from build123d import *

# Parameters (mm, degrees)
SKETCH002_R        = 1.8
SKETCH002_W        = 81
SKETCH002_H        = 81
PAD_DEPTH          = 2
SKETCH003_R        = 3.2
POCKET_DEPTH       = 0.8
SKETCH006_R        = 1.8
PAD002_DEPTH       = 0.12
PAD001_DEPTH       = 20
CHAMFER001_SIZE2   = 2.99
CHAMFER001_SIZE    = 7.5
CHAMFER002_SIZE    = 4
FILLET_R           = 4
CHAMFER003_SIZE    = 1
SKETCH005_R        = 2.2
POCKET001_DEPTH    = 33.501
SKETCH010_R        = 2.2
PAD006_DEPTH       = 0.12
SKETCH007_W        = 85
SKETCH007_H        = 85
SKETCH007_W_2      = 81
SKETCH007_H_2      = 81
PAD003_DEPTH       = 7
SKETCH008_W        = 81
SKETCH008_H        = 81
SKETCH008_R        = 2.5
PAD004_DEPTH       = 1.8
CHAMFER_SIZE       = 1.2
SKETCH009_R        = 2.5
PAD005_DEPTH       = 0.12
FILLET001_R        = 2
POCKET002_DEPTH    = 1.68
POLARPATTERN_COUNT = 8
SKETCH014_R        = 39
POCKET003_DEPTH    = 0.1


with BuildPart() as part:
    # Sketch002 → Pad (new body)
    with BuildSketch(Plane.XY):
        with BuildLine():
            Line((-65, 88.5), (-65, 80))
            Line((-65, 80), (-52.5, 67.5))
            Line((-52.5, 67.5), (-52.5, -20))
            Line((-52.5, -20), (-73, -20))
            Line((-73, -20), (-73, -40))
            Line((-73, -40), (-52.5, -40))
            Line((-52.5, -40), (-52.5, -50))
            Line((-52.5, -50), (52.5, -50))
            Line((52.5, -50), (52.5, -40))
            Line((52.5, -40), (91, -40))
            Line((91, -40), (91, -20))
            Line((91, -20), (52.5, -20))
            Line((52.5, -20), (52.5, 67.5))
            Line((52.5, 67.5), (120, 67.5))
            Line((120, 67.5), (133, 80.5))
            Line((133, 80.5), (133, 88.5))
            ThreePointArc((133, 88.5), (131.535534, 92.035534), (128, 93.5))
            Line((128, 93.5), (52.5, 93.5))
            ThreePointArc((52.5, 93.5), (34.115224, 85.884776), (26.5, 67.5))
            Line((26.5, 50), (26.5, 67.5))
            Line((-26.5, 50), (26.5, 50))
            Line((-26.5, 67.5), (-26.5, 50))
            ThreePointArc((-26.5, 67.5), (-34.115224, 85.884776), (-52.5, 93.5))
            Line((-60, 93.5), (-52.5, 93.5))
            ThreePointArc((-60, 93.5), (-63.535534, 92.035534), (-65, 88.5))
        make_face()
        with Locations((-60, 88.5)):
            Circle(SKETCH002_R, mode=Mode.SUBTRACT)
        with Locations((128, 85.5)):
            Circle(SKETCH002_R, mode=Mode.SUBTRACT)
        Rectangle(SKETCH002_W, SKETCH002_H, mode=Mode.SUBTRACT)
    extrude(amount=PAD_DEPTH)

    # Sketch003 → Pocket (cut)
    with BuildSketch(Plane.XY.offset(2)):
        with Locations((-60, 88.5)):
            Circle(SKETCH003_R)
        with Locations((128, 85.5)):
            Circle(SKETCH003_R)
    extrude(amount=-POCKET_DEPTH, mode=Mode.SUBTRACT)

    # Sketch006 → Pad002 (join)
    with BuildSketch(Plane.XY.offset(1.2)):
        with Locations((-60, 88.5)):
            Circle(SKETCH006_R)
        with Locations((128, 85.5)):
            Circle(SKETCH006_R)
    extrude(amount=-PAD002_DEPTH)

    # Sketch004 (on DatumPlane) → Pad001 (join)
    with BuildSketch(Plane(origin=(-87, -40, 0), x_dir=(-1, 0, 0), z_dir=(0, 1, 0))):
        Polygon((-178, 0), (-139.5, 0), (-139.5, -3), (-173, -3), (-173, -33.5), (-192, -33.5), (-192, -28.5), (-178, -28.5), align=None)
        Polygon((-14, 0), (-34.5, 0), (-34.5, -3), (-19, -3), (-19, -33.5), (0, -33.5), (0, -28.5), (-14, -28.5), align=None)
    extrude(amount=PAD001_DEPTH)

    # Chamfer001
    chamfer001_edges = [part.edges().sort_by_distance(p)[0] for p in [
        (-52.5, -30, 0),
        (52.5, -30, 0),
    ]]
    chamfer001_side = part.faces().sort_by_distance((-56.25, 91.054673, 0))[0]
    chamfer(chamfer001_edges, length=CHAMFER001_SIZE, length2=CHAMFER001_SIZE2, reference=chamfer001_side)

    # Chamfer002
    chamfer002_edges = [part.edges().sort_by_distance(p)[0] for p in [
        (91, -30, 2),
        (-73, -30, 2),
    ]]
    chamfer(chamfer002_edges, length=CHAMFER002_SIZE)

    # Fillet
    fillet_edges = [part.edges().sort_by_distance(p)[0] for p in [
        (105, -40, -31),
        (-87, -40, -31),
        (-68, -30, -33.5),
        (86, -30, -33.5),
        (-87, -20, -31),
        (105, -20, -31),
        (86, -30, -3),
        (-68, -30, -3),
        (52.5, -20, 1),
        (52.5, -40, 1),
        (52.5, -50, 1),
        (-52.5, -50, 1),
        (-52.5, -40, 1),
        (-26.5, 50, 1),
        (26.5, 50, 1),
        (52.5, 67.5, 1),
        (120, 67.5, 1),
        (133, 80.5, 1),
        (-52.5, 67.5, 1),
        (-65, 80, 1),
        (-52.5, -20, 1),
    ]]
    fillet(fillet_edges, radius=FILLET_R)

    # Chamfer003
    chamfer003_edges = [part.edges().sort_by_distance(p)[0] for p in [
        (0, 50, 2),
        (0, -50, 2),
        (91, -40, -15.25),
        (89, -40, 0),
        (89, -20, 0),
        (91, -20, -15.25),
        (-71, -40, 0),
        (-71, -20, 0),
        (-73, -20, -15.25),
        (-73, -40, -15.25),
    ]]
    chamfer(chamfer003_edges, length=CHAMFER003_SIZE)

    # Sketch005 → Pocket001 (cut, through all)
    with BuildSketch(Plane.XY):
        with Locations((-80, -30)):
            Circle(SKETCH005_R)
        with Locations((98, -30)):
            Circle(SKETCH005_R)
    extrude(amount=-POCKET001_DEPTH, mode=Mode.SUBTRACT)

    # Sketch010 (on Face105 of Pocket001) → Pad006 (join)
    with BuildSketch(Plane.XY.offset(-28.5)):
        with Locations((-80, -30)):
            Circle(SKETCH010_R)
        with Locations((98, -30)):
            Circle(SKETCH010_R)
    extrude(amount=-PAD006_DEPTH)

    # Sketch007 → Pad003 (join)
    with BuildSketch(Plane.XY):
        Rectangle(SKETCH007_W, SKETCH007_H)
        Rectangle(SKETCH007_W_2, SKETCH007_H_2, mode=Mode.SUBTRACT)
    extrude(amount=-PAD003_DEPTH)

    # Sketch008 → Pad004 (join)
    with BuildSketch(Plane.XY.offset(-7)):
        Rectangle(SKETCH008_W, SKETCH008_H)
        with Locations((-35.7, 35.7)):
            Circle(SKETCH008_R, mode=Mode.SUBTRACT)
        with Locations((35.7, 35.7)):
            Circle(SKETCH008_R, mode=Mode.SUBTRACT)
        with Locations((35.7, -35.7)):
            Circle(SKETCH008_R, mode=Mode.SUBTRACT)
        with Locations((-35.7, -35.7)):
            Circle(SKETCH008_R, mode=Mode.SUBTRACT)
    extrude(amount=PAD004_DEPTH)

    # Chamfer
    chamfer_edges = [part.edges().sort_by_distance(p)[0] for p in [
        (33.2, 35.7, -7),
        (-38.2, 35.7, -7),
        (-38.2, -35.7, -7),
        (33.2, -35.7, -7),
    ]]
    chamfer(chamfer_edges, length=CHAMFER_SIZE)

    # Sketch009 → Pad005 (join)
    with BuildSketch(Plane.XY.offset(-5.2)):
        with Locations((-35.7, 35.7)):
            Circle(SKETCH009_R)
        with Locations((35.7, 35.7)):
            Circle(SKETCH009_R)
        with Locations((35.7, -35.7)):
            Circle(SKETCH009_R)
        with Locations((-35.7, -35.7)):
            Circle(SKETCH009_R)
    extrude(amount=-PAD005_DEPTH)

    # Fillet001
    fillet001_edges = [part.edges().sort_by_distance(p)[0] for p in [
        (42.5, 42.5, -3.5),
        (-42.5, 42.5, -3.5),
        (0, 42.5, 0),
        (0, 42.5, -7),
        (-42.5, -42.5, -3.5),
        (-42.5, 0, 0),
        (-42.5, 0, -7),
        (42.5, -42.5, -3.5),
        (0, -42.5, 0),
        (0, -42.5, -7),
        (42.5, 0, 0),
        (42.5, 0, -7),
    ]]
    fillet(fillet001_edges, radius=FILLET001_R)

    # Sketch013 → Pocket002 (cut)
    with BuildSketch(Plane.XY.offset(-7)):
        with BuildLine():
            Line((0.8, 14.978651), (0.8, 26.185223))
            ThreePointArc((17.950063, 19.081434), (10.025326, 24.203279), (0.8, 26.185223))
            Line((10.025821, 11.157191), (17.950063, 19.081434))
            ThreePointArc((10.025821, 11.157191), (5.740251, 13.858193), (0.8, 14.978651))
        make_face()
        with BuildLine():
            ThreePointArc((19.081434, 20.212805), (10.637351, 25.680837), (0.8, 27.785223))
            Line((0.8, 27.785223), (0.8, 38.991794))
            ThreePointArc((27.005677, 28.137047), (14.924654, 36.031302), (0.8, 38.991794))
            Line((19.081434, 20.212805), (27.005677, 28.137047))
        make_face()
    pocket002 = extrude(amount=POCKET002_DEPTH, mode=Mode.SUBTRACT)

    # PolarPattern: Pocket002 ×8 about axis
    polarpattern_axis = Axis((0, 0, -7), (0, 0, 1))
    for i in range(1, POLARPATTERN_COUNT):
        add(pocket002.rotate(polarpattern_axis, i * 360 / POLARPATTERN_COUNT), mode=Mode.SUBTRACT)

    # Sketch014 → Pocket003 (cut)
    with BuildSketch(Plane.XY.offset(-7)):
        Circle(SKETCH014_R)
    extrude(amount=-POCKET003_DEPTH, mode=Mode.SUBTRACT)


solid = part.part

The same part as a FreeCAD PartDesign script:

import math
import FreeCAD as App
import Part
import Sketcher
from FreeCAD import Vector
Q = App.Units.Quantity


def edges_at(feature, points):
    """Names of the edges that pass closest to the given points."""
    edges = feature.Shape.Edges
    near = lambda p: min(range(len(edges)), key=lambda i: edges[i].distToShape(Part.Vertex(*p))[0])
    return sorted({f"Edge{near(p) + 1}" for p in points})

doc = App.newDocument("Part")
body = doc.addObject("PartDesign::Body", "Body")

sketch1 = body.newObject("Sketcher::SketchObject", "Sketch")
sketch1.AttachmentSupport = (doc.getObject("XY_Plane"), [""])
sketch1.MapMode = "FlatFace"
sketch1.addGeometry([
    Part.LineSegment(Vector(-65, 88.5, 0), Vector(-65, 80, 0)),
    Part.LineSegment(Vector(-65, 80, 0), Vector(-52.5, 67.5, 0)),
    Part.LineSegment(Vector(-52.5, 67.5, 0), Vector(-52.5, -20, 0)),
    Part.LineSegment(Vector(-52.5, -20, 0), Vector(-73, -20, 0)),
    Part.LineSegment(Vector(-73, -20, 0), Vector(-73, -40, 0)),
    Part.LineSegment(Vector(-73, -40, 0), Vector(-52.5, -40, 0)),
    Part.LineSegment(Vector(-52.5, -40, 0), Vector(-52.5, -50, 0)),
    Part.LineSegment(Vector(-52.5, -50, 0), Vector(52.5, -50, 0)),
    Part.LineSegment(Vector(52.5, -50, 0), Vector(52.5, -40, 0)),
    Part.LineSegment(Vector(52.5, -40, 0), Vector(91, -40, 0)),
    Part.LineSegment(Vector(91, -40, 0), Vector(91, -20, 0)),
    Part.LineSegment(Vector(91, -20, 0), Vector(52.5, -20, 0)),
    Part.LineSegment(Vector(52.5, -20, 0), Vector(52.5, 67.5, 0)),
    Part.LineSegment(Vector(52.5, 67.5, 0), Vector(120, 67.5, 0)),
    Part.LineSegment(Vector(120, 67.5, 0), Vector(133, 80.5, 0)),
    Part.LineSegment(Vector(133, 80.5, 0), Vector(133, 88.5, 0)),
    Part.ArcOfCircle(Part.Circle(Vector(128, 88.5, 0), Vector(0, 0, 1), 5), math.radians(-0.000004), math.radians(90.000004)),
    Part.LineSegment(Vector(128, 93.5, 0), Vector(52.5, 93.5, 0)),
    Part.ArcOfCircle(Part.Circle(Vector(52.500001, 67.499999, 0), Vector(0, 0, 1), 26.000001), math.radians(90.000002), math.radians(179.999998)),
    Part.LineSegment(Vector(26.5, 67.5, 0), Vector(26.5, 50, 0)),
    Part.LineSegment(Vector(26.5, 50, 0), Vector(-26.5, 50, 0)),
    Part.LineSegment(Vector(-26.5, 50, 0), Vector(-26.5, 67.5, 0)),
    Part.ArcOfCircle(Part.Circle(Vector(-52.500001, 67.499999, 0), Vector(0, 0, 1), 26.000001), math.radians(0.000002), math.radians(89.999998)),
    Part.LineSegment(Vector(-52.5, 93.5, 0), Vector(-60, 93.5, 0)),
    Part.ArcOfCircle(Part.Circle(Vector(-60, 88.5, 0), Vector(0, 0, 1), 5), math.radians(89.999996), math.radians(180.000004)),
    Part.LineSegment(Vector(40.5, -40.5, 0), Vector(-40.5, -40.5, 0)),
    Part.LineSegment(Vector(-40.5, -40.5, 0), Vector(-40.5, 40.5, 0)),
    Part.LineSegment(Vector(-40.5, 40.5, 0), Vector(40.5, 40.5, 0)),
    Part.LineSegment(Vector(40.5, 40.5, 0), Vector(40.5, -40.5, 0)),
    Part.Circle(Vector(-60, 88.5, 0), Vector(0, 0, 1), 1.8),
    Part.Circle(Vector(128, 85.5, 0), Vector(0, 0, 1), 1.8),
], False)
sketch1.addConstraint([
    Sketcher.Constraint("Coincident", 0, 2, 1, 1),
    Sketcher.Constraint("Coincident", 1, 2, 2, 1),
    Sketcher.Constraint("Coincident", 2, 2, 3, 1),
    Sketcher.Constraint("Coincident", 3, 2, 4, 1),
    Sketcher.Constraint("Coincident", 4, 2, 5, 1),
    Sketcher.Constraint("Coincident", 5, 2, 6, 1),
    Sketcher.Constraint("Coincident", 6, 2, 7, 1),
    Sketcher.Constraint("Coincident", 7, 2, 8, 1),
    Sketcher.Constraint("Coincident", 8, 2, 9, 1),
    Sketcher.Constraint("Coincident", 9, 2, 10, 1),
    Sketcher.Constraint("Coincident", 10, 2, 11, 1),
    Sketcher.Constraint("Coincident", 11, 2, 12, 1),
    Sketcher.Constraint("Coincident", 12, 2, 13, 1),
    Sketcher.Constraint("Coincident", 13, 2, 14, 1),
    Sketcher.Constraint("Coincident", 14, 2, 15, 1),
    Sketcher.Constraint("Tangent", 15, 2, 16, 1),
    Sketcher.Constraint("Tangent", 16, 2, 17, 1),
    Sketcher.Constraint("Tangent", 17, 2, 18, 1),
    Sketcher.Constraint("Tangent", 18, 2, 19, 1),
    Sketcher.Constraint("Coincident", 19, 2, 20, 1),
    Sketcher.Constraint("Coincident", 20, 2, 21, 1),
    Sketcher.Constraint("Tangent", 21, 2, 22, 1),
    Sketcher.Constraint("Tangent", 22, 2, 23, 1),
    Sketcher.Constraint("Tangent", 23, 2, 24, 1),
    Sketcher.Constraint("Tangent", 24, 2, 0, 1),
    Sketcher.Constraint("Coincident", 25, 2, 26, 1),
    Sketcher.Constraint("Coincident", 26, 2, 27, 1),
    Sketcher.Constraint("Coincident", 27, 2, 28, 1),
    Sketcher.Constraint("Coincident", 28, 2, 25, 1),
    Sketcher.Constraint("Vertical", 0),
    Sketcher.Constraint("Vertical", 2),
    Sketcher.Constraint("Horizontal", 3),
    Sketcher.Constraint("Vertical", 4),
    Sketcher.Constraint("Horizontal", 5),
    Sketcher.Constraint("Vertical", 6),
    Sketcher.Constraint("Horizontal", 7),
    Sketcher.Constraint("Vertical", 8),
    Sketcher.Constraint("Horizontal", 9),
    Sketcher.Constraint("Vertical", 10),
    Sketcher.Constraint("Horizontal", 11),
    Sketcher.Constraint("Vertical", 12),
    Sketcher.Constraint("Horizontal", 13),
    Sketcher.Constraint("Vertical", 15),
    Sketcher.Constraint("Horizontal", 17),
    Sketcher.Constraint("Vertical", 19),
    Sketcher.Constraint("Horizontal", 20),
    Sketcher.Constraint("Vertical", 21),
    Sketcher.Constraint("Horizontal", 23),
    Sketcher.Constraint("Horizontal", 25),
    Sketcher.Constraint("Vertical", 26),
    Sketcher.Constraint("Horizontal", 27),
    Sketcher.Constraint("Vertical", 28),
    Sketcher.Constraint("Coincident", 29, 3, 24, 3),
    Sketcher.Constraint("Coincident", 1, 2, 22, 3),
    Sketcher.Constraint("Coincident", 12, 2, 18, 3),
    Sketcher.Constraint("Equal", 18, 22),
    Sketcher.Constraint("Equal", 16, 24),
    Sketcher.Constraint("Equal", 29, 30),
    Sketcher.Constraint("Symmetric", 25, 2, 27, 2, -1, 1),
    Sketcher.Constraint("Symmetric", 18, 3, 22, 3, -2),
    Sketcher.Constraint("Symmetric", 5, 2, 8, 2, -2),
    Sketcher.Constraint("Perpendicular", 1, 14),
    Sketcher.Constraint("Horizontal", 3, 2, 10, 2),
    Sketcher.Constraint("Vertical", 16, 3, 30, 3),
    Sketcher.Constraint("Vertical", 2, 2, 5, 2),
    Sketcher.Constraint("Equal", 27, 26),
    Sketcher.Constraint("Radius", 16, 5.0),
    Sketcher.Constraint("Radius", 18, 26.000001),
    Sketcher.Constraint("Diameter", 29, 3.6),
    Sketcher.Constraint("DistanceX", 7, 1, 7, 2, 105.0),
    Sketcher.Constraint("DistanceX", 25, 2, 25, 1, 81.0),
    Sketcher.Constraint("DistanceY", 4, 2, 4, 1, 20.0),
    Sketcher.Constraint("DistanceY", 6, 2, 6, 1, 10.0),
    Sketcher.Constraint("DistanceY", 15, 1, 15, 2, 8.0),
    Sketcher.Constraint("Angle", 1, Q("-45 deg")),
    Sketcher.Constraint("DistanceX", 3, 2, 3, 1, 20.5),
    Sketcher.Constraint("DistanceX", 9, 1, 9, 2, 38.5),
    Sketcher.Constraint("DistanceX", 13, 1, 13, 2, 67.5),
    Sketcher.Constraint("DistanceX", 23, 2, 23, 1, 7.5),
    Sketcher.Constraint("DistanceY", 2, 2, 2, 1, 87.5),
    Sketcher.Constraint("DistanceY", 19, 2, 19, 1, 17.5),
    Sketcher.Constraint("DistanceY", -1, 1, 0, 2, 80.0),
    Sketcher.Constraint("DistanceY", 30, 3, 16, 3, 3.0),
])
pad1 = body.newObject("PartDesign::Pad", "Pad")
pad1.Profile = sketch1
pad1.Length = 2

sketch2 = body.newObject("Sketcher::SketchObject", "Sketch001")
sketch2.AttachmentSupport = (doc.getObject("XY_Plane"), [""])
sketch2.MapMode = "FlatFace"
sketch2.AttachmentOffset = App.Placement(Vector(0, 0, 2), App.Rotation())
sketch2.addGeometry([
    Part.Circle(Vector(-60, 88.5, 0), Vector(0, 0, 1), 3.2),
    Part.Circle(Vector(128, 85.5, 0), Vector(0, 0, 1), 3.2),
], False)
sketch2.addConstraint([
    Sketcher.Constraint("Equal", 0, 1),
    Sketcher.Constraint("Diameter", 0, 6.4),
    Sketcher.Constraint("DistanceX", 0, 3, -1, 1, 60.0),
    Sketcher.Constraint("DistanceX", -1, 1, 1, 3, 128.0),
    Sketcher.Constraint("DistanceY", 1, 3, 0, 3, 3.0),
    Sketcher.Constraint("DistanceY", -1, 1, 0, 3, 88.5),
])
pocket1 = body.newObject("PartDesign::Pocket", "Pocket")
pocket1.Profile = sketch2
pocket1.Length = 0.8

sketch3 = body.newObject("Sketcher::SketchObject", "Sketch002")
sketch3.AttachmentSupport = (doc.getObject("XY_Plane"), [""])
sketch3.MapMode = "FlatFace"
sketch3.AttachmentOffset = App.Placement(Vector(0, 0, 1.2), App.Rotation())
sketch3.addGeometry([
    Part.Circle(Vector(-60, 88.5, 0), Vector(0, 0, 1), 1.8),
    Part.Circle(Vector(128, 85.5, 0), Vector(0, 0, 1), 1.8),
], False)
sketch3.addConstraint([
    Sketcher.Constraint("Equal", 0, 1),
    Sketcher.Constraint("Diameter", 0, 3.6),
    Sketcher.Constraint("DistanceX", 0, 3, -1, 1, 60.0),
    Sketcher.Constraint("DistanceX", -1, 1, 1, 3, 128.0),
    Sketcher.Constraint("DistanceY", 1, 3, 0, 3, 3.0),
    Sketcher.Constraint("DistanceY", -1, 1, 0, 3, 88.5),
])
pad2 = body.newObject("PartDesign::Pad", "Pad001")
pad2.Profile = sketch3
pad2.Length = 0.12
pad2.Reversed = True

sketch4 = body.newObject("Sketcher::SketchObject", "Sketch003")
sketch4.AttachmentSupport = (doc.getObject("XZ_Plane"), [""])
sketch4.MapMode = "FlatFace"
sketch4.AttachmentOffset = App.Placement(Vector(0, 0, 40), App.Rotation())
sketch4.addGeometry([
    Part.LineSegment(Vector(52.5, 0, 0), Vector(91, 0, 0)),
    Part.LineSegment(Vector(91, 0, 0), Vector(91, -28.5, 0)),
    Part.LineSegment(Vector(91, -28.5, 0), Vector(105, -28.5, 0)),
    Part.LineSegment(Vector(105, -28.5, 0), Vector(105, -33.5, 0)),
    Part.LineSegment(Vector(105, -33.5, 0), Vector(86, -33.5, 0)),
    Part.LineSegment(Vector(86, -33.5, 0), Vector(86, -3, 0)),
    Part.LineSegment(Vector(86, -3, 0), Vector(52.5, -3, 0)),
    Part.LineSegment(Vector(52.5, -3, 0), Vector(52.5, 0, 0)),
    Part.LineSegment(Vector(-73, 0, 0), Vector(-52.5, 0, 0)),
    Part.LineSegment(Vector(-52.5, 0, 0), Vector(-52.5, -3, 0)),
    Part.LineSegment(Vector(-52.5, -3, 0), Vector(-68, -3, 0)),
    Part.LineSegment(Vector(-68, -3, 0), Vector(-68, -33.5, 0)),
    Part.LineSegment(Vector(-68, -33.5, 0), Vector(-87, -33.5, 0)),
    Part.LineSegment(Vector(-87, -33.5, 0), Vector(-87, -28.5, 0)),
    Part.LineSegment(Vector(-87, -28.5, 0), Vector(-73, -28.5, 0)),
    Part.LineSegment(Vector(-73, -28.5, 0), Vector(-73, 0, 0)),
], False)
sketch4.addConstraint([
    Sketcher.Constraint("Coincident", 0, 2, 1, 1),
    Sketcher.Constraint("Coincident", 1, 2, 2, 1),
    Sketcher.Constraint("Coincident", 2, 2, 3, 1),
    Sketcher.Constraint("Coincident", 3, 2, 4, 1),
    Sketcher.Constraint("Coincident", 4, 2, 5, 1),
    Sketcher.Constraint("Coincident", 5, 2, 6, 1),
    Sketcher.Constraint("Coincident", 6, 2, 7, 1),
    Sketcher.Constraint("Coincident", 7, 2, 0, 1),
    Sketcher.Constraint("Coincident", 8, 2, 9, 1),
    Sketcher.Constraint("Coincident", 9, 2, 10, 1),
    Sketcher.Constraint("Coincident", 10, 2, 11, 1),
    Sketcher.Constraint("Coincident", 11, 2, 12, 1),
    Sketcher.Constraint("Coincident", 12, 2, 13, 1),
    Sketcher.Constraint("Coincident", 13, 2, 14, 1),
    Sketcher.Constraint("Coincident", 14, 2, 15, 1),
    Sketcher.Constraint("Coincident", 15, 2, 8, 1),
    Sketcher.Constraint("Horizontal", 0),
    Sketcher.Constraint("Vertical", 1),
    Sketcher.Constraint("Horizontal", 2),
    Sketcher.Constraint("Vertical", 3),
    Sketcher.Constraint("Horizontal", 4),
    Sketcher.Constraint("Vertical", 5),
    Sketcher.Constraint("Horizontal", 6),
    Sketcher.Constraint("Vertical", 7),
    Sketcher.Constraint("Horizontal", 8),
    Sketcher.Constraint("Vertical", 9),
    Sketcher.Constraint("Horizontal", 10),
    Sketcher.Constraint("Vertical", 11),
    Sketcher.Constraint("Horizontal", 12),
    Sketcher.Constraint("Vertical", 13),
    Sketcher.Constraint("Horizontal", 14),
    Sketcher.Constraint("Vertical", 15),
    Sketcher.Constraint("Symmetric", 7, 2, 8, 2, -1, 1),
    Sketcher.Constraint("PointOnObject", 0, 2, -1),
    Sketcher.Constraint("Horizontal", 6, 2, 9, 2),
    Sketcher.Constraint("Horizontal", 4, 2, 11, 2),
    Sketcher.Constraint("Horizontal", 2, 2, 13, 2),
    Sketcher.Constraint("Equal", 4, 12),
    Sketcher.Constraint("Equal", 2, 14),
    Sketcher.Constraint("DistanceX", 2, 1, 2, 2, 14.0),
    Sketcher.Constraint("DistanceX", 4, 2, 4, 1, 19.0),
    Sketcher.Constraint("DistanceY", 3, 2, 3, 1, 5.0),
    Sketcher.Constraint("DistanceY", 7, 1, 7, 2, 3.0),
    Sketcher.Constraint("DistanceX", 0, 1, 0, 2, 38.5),
    Sketcher.Constraint("DistanceX", 8, 1, 8, 2, 20.5),
    Sketcher.Constraint("DistanceY", 1, 2, 1, 1, 28.5),
    Sketcher.Constraint("DistanceX", -1, 1, 0, 2, 91.0),
])
pad3 = body.newObject("PartDesign::Pad", "Pad002")
pad3.Profile = sketch4
pad3.Length = 20
pad3.Reversed = True
doc.recompute()

chamfer = body.newObject("PartDesign::Chamfer", "Chamfer")
chamfer.Base = (pad3, edges_at(pad3, [(-52.5, -30, 0), (52.5, -30, 0)]))
chamfer.ChamferType = "Two distances"
chamfer.Size = 7.5
chamfer.Size2 = 2.99
doc.recompute()

chamfer2 = body.newObject("PartDesign::Chamfer", "Chamfer001")
chamfer2.Base = (chamfer, edges_at(chamfer, [(91, -30, 2), (-73, -30, 2)]))
chamfer2.Size = 4
doc.recompute()

fillet = body.newObject("PartDesign::Fillet", "Fillet")
fillet.Base = (chamfer2, edges_at(chamfer2, [
    (105, -40, -31),
    (-87, -40, -31),
    (-68, -30, -33.5),
    (86, -30, -33.5),
    (-87, -20, -31),
    (105, -20, -31),
    (86, -30, -3),
    (-68, -30, -3),
    (52.5, -20, 1),
    (52.5, -40, 1),
    (52.5, -50, 1),
    (-52.5, -50, 1),
    (-52.5, -40, 1),
    (-26.5, 50, 1),
    (26.5, 50, 1),
    (52.5, 67.5, 1),
    (120, 67.5, 1),
    (133, 80.5, 1),
    (-52.5, 67.5, 1),
    (-65, 80, 1),
    (-52.5, -20, 1),
]))
fillet.Radius = 4
doc.recompute()

chamfer3 = body.newObject("PartDesign::Chamfer", "Chamfer002")
chamfer3.Base = (fillet, edges_at(fillet, [
    (0, 50, 2),
    (0, -50, 2),
    (91, -40, -15.25),
    (89, -40, 0),
    (89, -20, 0),
    (91, -20, -15.25),
    (-71, -40, 0),
    (-71, -20, 0),
    (-73, -20, -15.25),
    (-73, -40, -15.25),
]))
chamfer3.Size = 1

sketch5 = body.newObject("Sketcher::SketchObject", "Sketch004")
sketch5.AttachmentSupport = (doc.getObject("XY_Plane"), [""])
sketch5.MapMode = "FlatFace"
sketch5.addGeometry([
    Part.Circle(Vector(-80, -30, 0), Vector(0, 0, 1), 2.2),
    Part.Circle(Vector(98, -30, 0), Vector(0, 0, 1), 2.2),
], False)
sketch5.addConstraint([
    Sketcher.Constraint("Equal", 0, 1),
    Sketcher.Constraint("Horizontal", 0, 3, 1, 3),
    Sketcher.Constraint("Diameter", 0, 4.4),
    Sketcher.Constraint("DistanceX", 0, 3, -1, 1, 80.0),
    Sketcher.Constraint("DistanceY", 0, 3, -1, 1, 30.0),
    Sketcher.Constraint("DistanceX", -1, 1, 1, 3, 98.0),
])
pocket2 = body.newObject("PartDesign::Pocket", "Pocket001")
pocket2.Profile = sketch5
pocket2.Type = "ThroughAll"

sketch6 = body.newObject("Sketcher::SketchObject", "Sketch005")
sketch6.AttachmentSupport = (doc.getObject("XY_Plane"), [""])
sketch6.MapMode = "FlatFace"
sketch6.AttachmentOffset = App.Placement(Vector(0, 0, -28.5), App.Rotation())
sketch6.addGeometry([
    Part.Circle(Vector(-80, -30, 0), Vector(0, 0, 1), 2.2),
    Part.Circle(Vector(98, -30, 0), Vector(0, 0, 1), 2.2),
], False)
sketch6.addConstraint([
    Sketcher.Constraint("Equal", 0, 1),
    Sketcher.Constraint("Horizontal", 0, 3, 1, 3),
    Sketcher.Constraint("Diameter", 0, 4.4),
    Sketcher.Constraint("DistanceX", 0, 3, -1, 1, 80.0),
    Sketcher.Constraint("DistanceY", 0, 3, -1, 1, 30.0),
    Sketcher.Constraint("DistanceX", -1, 1, 1, 3, 98.0),
])
pad4 = body.newObject("PartDesign::Pad", "Pad003")
pad4.Profile = sketch6
pad4.Length = 0.12
pad4.Reversed = True

sketch7 = body.newObject("Sketcher::SketchObject", "Sketch006")
sketch7.AttachmentSupport = (doc.getObject("XY_Plane"), [""])
sketch7.MapMode = "FlatFace"
sketch7.addGeometry([
    Part.LineSegment(Vector(-42.5, 42.5, 0), Vector(-42.5, -42.5, 0)),
    Part.LineSegment(Vector(-42.5, -42.5, 0), Vector(42.5, -42.5, 0)),
    Part.LineSegment(Vector(42.5, -42.5, 0), Vector(42.5, 42.5, 0)),
    Part.LineSegment(Vector(42.5, 42.5, 0), Vector(-42.5, 42.5, 0)),
    Part.LineSegment(Vector(40.5, -40.5, 0), Vector(-40.5, -40.5, 0)),
    Part.LineSegment(Vector(-40.5, -40.5, 0), Vector(-40.5, 40.5, 0)),
    Part.LineSegment(Vector(-40.5, 40.5, 0), Vector(40.5, 40.5, 0)),
    Part.LineSegment(Vector(40.5, 40.5, 0), Vector(40.5, -40.5, 0)),
], False)
sketch7.addConstraint([
    Sketcher.Constraint("Coincident", 0, 2, 1, 1),
    Sketcher.Constraint("Coincident", 1, 2, 2, 1),
    Sketcher.Constraint("Coincident", 2, 2, 3, 1),
    Sketcher.Constraint("Coincident", 3, 2, 0, 1),
    Sketcher.Constraint("Coincident", 4, 2, 5, 1),
    Sketcher.Constraint("Coincident", 5, 2, 6, 1),
    Sketcher.Constraint("Coincident", 6, 2, 7, 1),
    Sketcher.Constraint("Coincident", 7, 2, 4, 1),
    Sketcher.Constraint("Vertical", 0),
    Sketcher.Constraint("Horizontal", 1),
    Sketcher.Constraint("Vertical", 2),
    Sketcher.Constraint("Horizontal", 3),
    Sketcher.Constraint("Horizontal", 4),
    Sketcher.Constraint("Vertical", 5),
    Sketcher.Constraint("Horizontal", 6),
    Sketcher.Constraint("Vertical", 7),
    Sketcher.Constraint("Symmetric", 0, 2, 2, 2, -1, 1),
    Sketcher.Constraint("Symmetric", 4, 2, 6, 2, -1, 1),
    Sketcher.Constraint("Equal", 3, 0),
    Sketcher.Constraint("Equal", 6, 5),
    Sketcher.Constraint("DistanceX", 1, 1, 1, 2, 85.0),
    Sketcher.Constraint("DistanceX", 4, 2, 4, 1, 81.0),
])
pad5 = body.newObject("PartDesign::Pad", "Pad004")
pad5.Profile = sketch7
pad5.Length = 7
pad5.Reversed = True

sketch8 = body.newObject("Sketcher::SketchObject", "Sketch007")
sketch8.AttachmentSupport = (doc.getObject("XY_Plane"), [""])
sketch8.MapMode = "FlatFace"
sketch8.AttachmentOffset = App.Placement(Vector(0, 0, -7), App.Rotation())
sketch8.addGeometry([
    Part.LineSegment(Vector(-40.5, 40.5, 0), Vector(-40.5, -40.5, 0)),
    Part.LineSegment(Vector(-40.5, -40.5, 0), Vector(40.5, -40.5, 0)),
    Part.LineSegment(Vector(40.5, -40.5, 0), Vector(40.5, 40.5, 0)),
    Part.LineSegment(Vector(40.5, 40.5, 0), Vector(-40.5, 40.5, 0)),
    Part.Circle(Vector(-35.7, -35.7, 0), Vector(0, 0, 1), 2.5),
    Part.Circle(Vector(35.7, -35.7, 0), Vector(0, 0, 1), 2.5),
    Part.Circle(Vector(-35.7, 35.7, 0), Vector(0, 0, 1), 2.5),
    Part.Circle(Vector(35.7, 35.7, 0), Vector(0, 0, 1), 2.5),
], False)
sketch8.addConstraint([
    Sketcher.Constraint("Coincident", 0, 2, 1, 1),
    Sketcher.Constraint("Coincident", 1, 2, 2, 1),
    Sketcher.Constraint("Coincident", 2, 2, 3, 1),
    Sketcher.Constraint("Coincident", 3, 2, 0, 1),
    Sketcher.Constraint("Vertical", 0),
    Sketcher.Constraint("Horizontal", 1),
    Sketcher.Constraint("Vertical", 2),
    Sketcher.Constraint("Horizontal", 3),
    Sketcher.Constraint("Equal", 4, 5),
    Sketcher.Constraint("Equal", 5, 6),
    Sketcher.Constraint("Equal", 6, 7),
    Sketcher.Constraint("Symmetric", 5, 3, 6, 3, -1, 1),
    Sketcher.Constraint("Symmetric", 4, 3, 7, 3, -1, 1),
    Sketcher.Constraint("Symmetric", 0, 2, 2, 2, -1, 1),
    Sketcher.Constraint("Symmetric", 4, 3, 5, 3, -2),
    Sketcher.Constraint("Equal", 3, 0),
    Sketcher.Constraint("Diameter", 4, 5.0),
    Sketcher.Constraint("DistanceX", 1, 1, 1, 2, 81.0),
    Sketcher.Constraint("DistanceX", 4, 3, -1, 1, 35.7),
    Sketcher.Constraint("DistanceY", 4, 3, -1, 1, 35.7),
])
pad6 = body.newObject("PartDesign::Pad", "Pad005")
pad6.Profile = sketch8
pad6.Length = 1.8
doc.recompute()

chamfer4 = body.newObject("PartDesign::Chamfer", "Chamfer003")
chamfer4.Base = (pad6, edges_at(pad6, [
    (33.2, 35.7, -7),
    (-38.2, 35.7, -7),
    (-38.2, -35.7, -7),
    (33.2, -35.7, -7),
]))
chamfer4.Size = 1.2

sketch9 = body.newObject("Sketcher::SketchObject", "Sketch008")
sketch9.AttachmentSupport = (doc.getObject("XY_Plane"), [""])
sketch9.MapMode = "FlatFace"
sketch9.AttachmentOffset = App.Placement(Vector(0, 0, -5.2), App.Rotation())
sketch9.addGeometry([
    Part.Circle(Vector(-35.7, 35.7, 0), Vector(0, 0, 1), 2.5),
    Part.Circle(Vector(35.7, 35.7, 0), Vector(0, 0, 1), 2.5),
    Part.Circle(Vector(35.7, -35.7, 0), Vector(0, 0, 1), 2.5),
    Part.Circle(Vector(-35.7, -35.7, 0), Vector(0, 0, 1), 2.5),
], False)
sketch9.addConstraint([
    Sketcher.Constraint("Equal", 0, 1),
    Sketcher.Constraint("Equal", 1, 2),
    Sketcher.Constraint("Equal", 2, 3),
    Sketcher.Constraint("Symmetric", 0, 3, 2, 3, -1, 1),
    Sketcher.Constraint("Symmetric", 1, 3, 3, 3, -1, 1),
    Sketcher.Constraint("Symmetric", 0, 3, 1, 3, -2),
    Sketcher.Constraint("Diameter", 0, 5.0),
    Sketcher.Constraint("DistanceX", 0, 3, -1, 1, 35.7),
    Sketcher.Constraint("DistanceY", -1, 1, 0, 3, 35.7),
])
pad7 = body.newObject("PartDesign::Pad", "Pad006")
pad7.Profile = sketch9
pad7.Length = 0.12
pad7.Reversed = True
doc.recompute()

fillet2 = body.newObject("PartDesign::Fillet", "Fillet001")
fillet2.Base = (pad7, edges_at(pad7, [
    (42.5, 42.5, -3.5),
    (-42.5, 42.5, -3.5),
    (0, 42.5, 0),
    (0, 42.5, -7),
    (-42.5, -42.5, -3.5),
    (-42.5, 0, 0),
    (-42.5, 0, -7),
    (42.5, -42.5, -3.5),
    (0, -42.5, 0),
    (0, -42.5, -7),
    (42.5, 0, 0),
    (42.5, 0, -7),
]))
fillet2.Radius = 2

sketch10 = body.newObject("Sketcher::SketchObject", "Sketch009")
sketch10.AttachmentSupport = (doc.getObject("XY_Plane"), [""])
sketch10.MapMode = "FlatFace"
sketch10.AttachmentOffset = App.Placement(Vector(0, 0, -7), App.Rotation())
sketch10.addGeometry([
    Part.LineSegment(Vector(0.8, 26.185223, 0), Vector(0.8, 14.978651, 0)),
    Part.ArcOfCircle(Part.Circle(Vector(0.000001, 0.000001, 0), Vector(0, 0, 1), 14.999998), math.radians(48.057223), math.radians(86.942779)),
    Part.LineSegment(Vector(10.025821, 11.157191, 0), Vector(17.950063, 19.081434, 0)),
    Part.ArcOfCircle(Part.Circle(Vector(-0.000003, -0.000005, 0), Vector(0, 0, 1), 26.197446), math.radians(46.749936), math.radians(88.250062)),
    Part.ArcOfCircle(Part.Circle(Vector(0.000001, 0.000003, 0), Vector(0, 0, 1), 27.796734), math.radians(46.649218), math.radians(88.350781)),
    Part.LineSegment(Vector(19.081434, 20.212805, 0), Vector(27.005677, 28.137047, 0)),
    Part.ArcOfCircle(Part.Circle(Vector(0.000001, 0.000003, 0), Vector(0, 0, 1), 38.999997), math.radians(46.175378), math.radians(88.824622)),
    Part.LineSegment(Vector(0.8, 38.991794, 0), Vector(0.8, 27.785223, 0)),
], False)
sketch10.addConstraint([
    Sketcher.Constraint("Coincident", 0, 2, 1, 2),
    Sketcher.Constraint("Coincident", 1, 1, 2, 1),
    Sketcher.Constraint("Coincident", 2, 2, 3, 1),
    Sketcher.Constraint("Coincident", 3, 2, 0, 1),
    Sketcher.Constraint("Coincident", 4, 1, 5, 1),
    Sketcher.Constraint("Coincident", 5, 2, 6, 1),
    Sketcher.Constraint("Coincident", 6, 2, 7, 1),
    Sketcher.Constraint("Coincident", 7, 2, 4, 2),
    Sketcher.Constraint("Vertical", 0),
    Sketcher.Constraint("Vertical", 7),
    Sketcher.Constraint("Coincident", 1, 3, -1, 1),
    Sketcher.Constraint("Coincident", 3, 3, -1, 1),
    Sketcher.Constraint("Coincident", 4, 3, -1, 1),
    Sketcher.Constraint("Coincident", 6, 3, -1, 1),
    Sketcher.Constraint("Parallel", 2, 5),
    Sketcher.Constraint("Vertical", 3, 2, 6, 2),
    Sketcher.Constraint("Equal", 0, 7),
    Sketcher.Constraint("Equal", 2, 5),
    Sketcher.Constraint("Radius", 1, 14.999998),
    Sketcher.Constraint("Angle", 2, Q("45.000004 deg")),
    Sketcher.Constraint("DistanceX", -1, 1, 0, 2, 0.8),
    Sketcher.Constraint("DistanceY", 3, 2, 7, 2, 1.6),
    Sketcher.Constraint("Radius", 3, 26.197446),
    Sketcher.Constraint("DistanceY", 6, 3, 4, 1, 20.212802),
])
pocket3 = body.newObject("PartDesign::Pocket", "Pocket002")
pocket3.Profile = sketch10
pocket3.Length = 1.68
pocket3.Reversed = True
doc.recompute()

polarpattern = body.newObject("PartDesign::PolarPattern", "PolarPattern")
polarpattern.Originals = [pocket3]
polarpattern.Axis = (doc.getObject("Z_Axis"), [""])
polarpattern.Angle = 360
polarpattern.Occurrences = 8
body.Tip = polarpattern

sketch11 = body.newObject("Sketcher::SketchObject", "Sketch010")
sketch11.AttachmentSupport = (doc.getObject("XY_Plane"), [""])
sketch11.MapMode = "FlatFace"
sketch11.AttachmentOffset = App.Placement(Vector(0, 0, -7), App.Rotation())
sketch11.addGeometry(Part.Circle(Vector(0, 0, 0), Vector(0, 0, 1), 39), False)
sketch11.addConstraint([
    Sketcher.Constraint("Coincident", 0, 3, -1, 1),
    Sketcher.Constraint("Diameter", 0, 78.0),
])
pocket4 = body.newObject("PartDesign::Pocket", "Pocket003")
pocket4.Profile = sketch11
pocket4.Length = 0.1

doc.recompute()
